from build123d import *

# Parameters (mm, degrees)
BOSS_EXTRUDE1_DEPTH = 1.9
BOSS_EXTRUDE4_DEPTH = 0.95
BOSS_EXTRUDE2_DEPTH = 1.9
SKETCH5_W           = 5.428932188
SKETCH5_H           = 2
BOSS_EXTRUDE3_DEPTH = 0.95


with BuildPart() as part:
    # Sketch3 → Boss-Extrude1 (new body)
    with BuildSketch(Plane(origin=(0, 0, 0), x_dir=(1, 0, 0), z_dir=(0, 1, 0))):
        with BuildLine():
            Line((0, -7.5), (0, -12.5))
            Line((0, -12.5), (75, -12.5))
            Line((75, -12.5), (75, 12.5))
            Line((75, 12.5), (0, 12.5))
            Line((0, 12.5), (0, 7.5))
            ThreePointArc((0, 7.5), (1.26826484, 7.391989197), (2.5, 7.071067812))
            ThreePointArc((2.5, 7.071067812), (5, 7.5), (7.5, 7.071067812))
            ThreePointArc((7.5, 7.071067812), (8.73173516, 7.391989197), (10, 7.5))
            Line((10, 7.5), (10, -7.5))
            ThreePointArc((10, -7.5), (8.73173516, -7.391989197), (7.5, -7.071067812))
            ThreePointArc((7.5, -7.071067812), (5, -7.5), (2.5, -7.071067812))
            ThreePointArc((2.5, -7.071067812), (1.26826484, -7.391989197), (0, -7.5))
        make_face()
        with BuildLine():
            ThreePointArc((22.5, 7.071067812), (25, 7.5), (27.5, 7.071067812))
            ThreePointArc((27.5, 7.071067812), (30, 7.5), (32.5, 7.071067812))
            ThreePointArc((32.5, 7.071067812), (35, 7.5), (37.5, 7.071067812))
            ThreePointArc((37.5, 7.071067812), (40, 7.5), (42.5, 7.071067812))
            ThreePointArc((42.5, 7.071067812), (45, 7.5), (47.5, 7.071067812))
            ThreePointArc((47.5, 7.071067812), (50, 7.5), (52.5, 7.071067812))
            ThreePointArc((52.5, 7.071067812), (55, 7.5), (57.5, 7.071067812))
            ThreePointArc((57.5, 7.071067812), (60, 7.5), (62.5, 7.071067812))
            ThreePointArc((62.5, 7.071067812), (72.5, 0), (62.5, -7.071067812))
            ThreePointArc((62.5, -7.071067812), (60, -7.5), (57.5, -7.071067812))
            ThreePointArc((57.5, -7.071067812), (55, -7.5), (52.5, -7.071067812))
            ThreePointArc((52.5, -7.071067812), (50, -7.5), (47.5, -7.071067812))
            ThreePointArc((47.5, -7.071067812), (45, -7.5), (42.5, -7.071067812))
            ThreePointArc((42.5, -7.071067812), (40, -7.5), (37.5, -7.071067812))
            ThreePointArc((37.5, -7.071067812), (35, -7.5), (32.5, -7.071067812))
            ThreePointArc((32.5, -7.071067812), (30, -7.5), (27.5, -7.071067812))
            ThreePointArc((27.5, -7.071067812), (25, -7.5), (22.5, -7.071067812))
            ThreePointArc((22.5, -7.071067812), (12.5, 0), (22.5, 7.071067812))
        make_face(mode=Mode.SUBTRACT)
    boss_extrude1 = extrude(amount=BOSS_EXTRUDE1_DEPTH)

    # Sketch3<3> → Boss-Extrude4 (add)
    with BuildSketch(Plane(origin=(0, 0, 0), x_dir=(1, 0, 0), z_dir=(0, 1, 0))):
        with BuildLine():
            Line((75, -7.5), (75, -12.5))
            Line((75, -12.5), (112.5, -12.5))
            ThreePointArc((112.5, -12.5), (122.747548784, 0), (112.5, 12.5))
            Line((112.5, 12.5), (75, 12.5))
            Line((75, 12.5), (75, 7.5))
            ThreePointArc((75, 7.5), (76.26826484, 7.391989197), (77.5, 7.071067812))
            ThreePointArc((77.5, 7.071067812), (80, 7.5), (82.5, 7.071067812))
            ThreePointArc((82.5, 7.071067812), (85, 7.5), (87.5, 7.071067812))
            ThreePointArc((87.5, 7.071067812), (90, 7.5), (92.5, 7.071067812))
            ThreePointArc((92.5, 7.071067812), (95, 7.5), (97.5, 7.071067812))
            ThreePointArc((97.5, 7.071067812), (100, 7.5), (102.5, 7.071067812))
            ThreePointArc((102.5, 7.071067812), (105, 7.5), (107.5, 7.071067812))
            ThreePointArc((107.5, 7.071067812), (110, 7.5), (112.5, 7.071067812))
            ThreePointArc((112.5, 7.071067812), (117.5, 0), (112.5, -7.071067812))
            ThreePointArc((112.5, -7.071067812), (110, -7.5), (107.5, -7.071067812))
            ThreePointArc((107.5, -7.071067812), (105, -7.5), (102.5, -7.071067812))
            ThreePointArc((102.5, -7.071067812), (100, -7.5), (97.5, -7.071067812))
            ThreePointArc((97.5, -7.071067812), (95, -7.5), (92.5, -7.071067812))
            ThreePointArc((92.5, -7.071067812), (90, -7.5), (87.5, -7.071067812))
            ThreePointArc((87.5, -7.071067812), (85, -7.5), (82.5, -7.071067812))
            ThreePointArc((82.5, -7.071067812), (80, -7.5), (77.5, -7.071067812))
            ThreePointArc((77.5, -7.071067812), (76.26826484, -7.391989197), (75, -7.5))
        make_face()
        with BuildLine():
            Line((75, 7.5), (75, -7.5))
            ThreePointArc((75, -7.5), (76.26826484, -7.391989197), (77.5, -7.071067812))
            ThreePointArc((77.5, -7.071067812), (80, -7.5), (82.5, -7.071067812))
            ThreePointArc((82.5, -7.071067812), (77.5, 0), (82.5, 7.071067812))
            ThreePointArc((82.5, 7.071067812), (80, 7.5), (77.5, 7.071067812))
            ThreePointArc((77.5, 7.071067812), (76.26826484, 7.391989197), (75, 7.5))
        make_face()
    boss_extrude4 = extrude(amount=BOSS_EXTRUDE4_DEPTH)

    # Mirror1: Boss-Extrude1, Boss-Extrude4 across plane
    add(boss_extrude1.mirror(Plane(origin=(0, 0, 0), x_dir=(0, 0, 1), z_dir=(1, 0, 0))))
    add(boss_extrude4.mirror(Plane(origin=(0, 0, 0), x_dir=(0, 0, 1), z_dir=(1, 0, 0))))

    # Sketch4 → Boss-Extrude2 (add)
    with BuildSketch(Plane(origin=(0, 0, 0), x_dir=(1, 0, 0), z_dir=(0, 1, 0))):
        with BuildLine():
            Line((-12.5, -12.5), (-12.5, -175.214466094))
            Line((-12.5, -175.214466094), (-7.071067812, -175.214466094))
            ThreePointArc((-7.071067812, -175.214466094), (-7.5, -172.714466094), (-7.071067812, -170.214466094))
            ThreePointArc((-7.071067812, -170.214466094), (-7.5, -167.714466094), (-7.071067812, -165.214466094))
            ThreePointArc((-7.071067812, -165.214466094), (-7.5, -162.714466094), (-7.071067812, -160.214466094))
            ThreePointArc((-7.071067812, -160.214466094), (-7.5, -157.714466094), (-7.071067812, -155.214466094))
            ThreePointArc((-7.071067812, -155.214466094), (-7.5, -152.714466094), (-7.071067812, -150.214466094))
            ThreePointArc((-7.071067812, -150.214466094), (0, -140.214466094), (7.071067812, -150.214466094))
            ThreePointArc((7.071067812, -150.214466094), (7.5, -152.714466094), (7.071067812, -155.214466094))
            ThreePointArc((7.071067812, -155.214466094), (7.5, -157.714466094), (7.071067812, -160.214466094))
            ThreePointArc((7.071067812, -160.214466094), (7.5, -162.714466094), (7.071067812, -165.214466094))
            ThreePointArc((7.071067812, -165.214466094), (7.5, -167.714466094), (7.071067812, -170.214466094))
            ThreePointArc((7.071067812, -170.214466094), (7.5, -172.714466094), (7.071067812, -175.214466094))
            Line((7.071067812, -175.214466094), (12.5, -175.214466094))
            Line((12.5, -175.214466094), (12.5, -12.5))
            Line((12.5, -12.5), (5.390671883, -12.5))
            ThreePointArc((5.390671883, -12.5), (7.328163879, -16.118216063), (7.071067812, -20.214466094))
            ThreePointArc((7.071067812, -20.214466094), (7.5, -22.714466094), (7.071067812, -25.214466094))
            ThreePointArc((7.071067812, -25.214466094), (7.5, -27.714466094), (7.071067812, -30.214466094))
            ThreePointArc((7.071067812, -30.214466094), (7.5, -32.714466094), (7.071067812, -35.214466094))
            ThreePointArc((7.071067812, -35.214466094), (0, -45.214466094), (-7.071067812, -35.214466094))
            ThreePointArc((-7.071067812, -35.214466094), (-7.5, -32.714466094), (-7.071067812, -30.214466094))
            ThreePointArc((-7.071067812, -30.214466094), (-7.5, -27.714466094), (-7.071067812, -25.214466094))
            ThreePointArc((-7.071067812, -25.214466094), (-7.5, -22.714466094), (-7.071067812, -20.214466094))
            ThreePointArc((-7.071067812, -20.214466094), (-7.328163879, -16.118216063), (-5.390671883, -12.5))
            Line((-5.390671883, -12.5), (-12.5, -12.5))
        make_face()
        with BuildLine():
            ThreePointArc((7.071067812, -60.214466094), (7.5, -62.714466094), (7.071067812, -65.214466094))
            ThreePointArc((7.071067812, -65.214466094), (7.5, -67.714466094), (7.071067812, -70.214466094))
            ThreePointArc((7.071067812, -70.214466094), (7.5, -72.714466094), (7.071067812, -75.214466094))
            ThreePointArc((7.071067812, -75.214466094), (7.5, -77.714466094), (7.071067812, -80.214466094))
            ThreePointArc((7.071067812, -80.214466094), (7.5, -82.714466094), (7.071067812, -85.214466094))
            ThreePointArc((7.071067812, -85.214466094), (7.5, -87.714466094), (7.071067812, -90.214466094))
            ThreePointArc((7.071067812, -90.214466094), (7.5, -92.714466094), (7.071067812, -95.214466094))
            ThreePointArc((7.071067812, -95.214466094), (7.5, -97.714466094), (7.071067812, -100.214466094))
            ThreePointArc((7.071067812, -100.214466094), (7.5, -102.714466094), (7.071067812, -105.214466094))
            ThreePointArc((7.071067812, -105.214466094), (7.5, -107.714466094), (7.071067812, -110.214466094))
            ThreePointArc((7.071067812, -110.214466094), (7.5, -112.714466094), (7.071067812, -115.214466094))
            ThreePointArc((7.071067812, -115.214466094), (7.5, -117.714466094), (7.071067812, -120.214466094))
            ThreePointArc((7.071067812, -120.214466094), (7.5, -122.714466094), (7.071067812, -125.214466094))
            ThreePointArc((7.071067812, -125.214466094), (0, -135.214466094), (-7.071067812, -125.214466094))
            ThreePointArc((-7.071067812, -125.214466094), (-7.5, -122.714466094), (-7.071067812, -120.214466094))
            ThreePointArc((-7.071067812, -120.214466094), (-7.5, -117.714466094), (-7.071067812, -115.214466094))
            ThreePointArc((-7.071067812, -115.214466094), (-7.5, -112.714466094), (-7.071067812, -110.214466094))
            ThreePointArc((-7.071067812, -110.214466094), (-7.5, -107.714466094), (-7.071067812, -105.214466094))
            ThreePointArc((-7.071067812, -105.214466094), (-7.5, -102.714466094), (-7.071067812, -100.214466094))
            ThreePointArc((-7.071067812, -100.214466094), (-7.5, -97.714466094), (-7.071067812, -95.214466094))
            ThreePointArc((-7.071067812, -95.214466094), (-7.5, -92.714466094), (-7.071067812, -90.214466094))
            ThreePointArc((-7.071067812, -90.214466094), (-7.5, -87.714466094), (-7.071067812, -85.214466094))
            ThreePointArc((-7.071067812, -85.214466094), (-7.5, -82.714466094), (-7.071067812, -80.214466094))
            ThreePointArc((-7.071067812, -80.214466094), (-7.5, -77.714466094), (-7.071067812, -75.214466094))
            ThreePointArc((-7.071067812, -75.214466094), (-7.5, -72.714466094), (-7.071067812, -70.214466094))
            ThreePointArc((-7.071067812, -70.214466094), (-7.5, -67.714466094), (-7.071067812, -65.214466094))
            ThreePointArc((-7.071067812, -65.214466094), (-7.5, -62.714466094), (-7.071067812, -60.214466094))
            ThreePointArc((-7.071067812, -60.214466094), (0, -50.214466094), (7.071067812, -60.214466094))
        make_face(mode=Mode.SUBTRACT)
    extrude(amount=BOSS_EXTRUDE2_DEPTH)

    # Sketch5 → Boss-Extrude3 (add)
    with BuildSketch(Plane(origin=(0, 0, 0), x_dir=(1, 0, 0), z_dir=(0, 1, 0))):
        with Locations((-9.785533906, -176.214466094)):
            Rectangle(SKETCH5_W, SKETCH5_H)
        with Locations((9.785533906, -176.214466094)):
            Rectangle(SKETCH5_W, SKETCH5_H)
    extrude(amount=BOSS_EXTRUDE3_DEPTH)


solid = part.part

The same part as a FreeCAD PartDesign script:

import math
import FreeCAD as App
import Part
import Sketcher
from FreeCAD import Vector
Q = App.Units.Quantity


def add_polygon(sketch, points):
    """Adds a closed chain of lines whose ends are joined by coincident constraints."""
    first, n = sketch.GeometryCount, len(points)
    for a, b in zip(points, points[1:] + points[:1]):
        sketch.addGeometry(Part.LineSegment(App.Vector(*a, 0), App.Vector(*b, 0)), False)
    for i in range(n):
        sketch.addConstraint(Sketcher.Constraint("Coincident", first + i, 2, first + (i + 1) % n, 1))

doc = App.newDocument("Part")
params = doc.addObject("Spreadsheet::Sheet", "Params")
for row, (alias, value) in enumerate([
    ("sketch1_radius", "7.5 mm"),
    ("sketch1_width", "75 mm"),
    ("sketch1_height", "5 mm"),
    ("pad1_length", "1.9 mm"),
    ("sketch2_radius", "7.5 mm"),
    ("sketch2_height", "25 mm"),
    ("sketch2_width", "37.5 mm"),
    ("pad2_length", "0.95 mm"),
    ("sketch3_radius", "7.5 mm"),
    ("pad3_length", "1.9 mm"),
    ("sketch4_height", "2 mm"),
    ("pad4_length", "0.95 mm"),
], start=1):
    params.set(f"A{row}", alias)
    params.set(f"B{row}", "=" + value)
    params.setAlias(f"B{row}", alias)

body = doc.addObject("PartDesign::Body", "Body")

sketch1 = body.newObject("Sketcher::SketchObject", "Sketch")
sketch1.AttachmentSupport = (doc.getObject("XZ_Plane"), [""])
sketch1.MapMode = "FlatFace"
sketch1.addGeometry([
    Part.LineSegment(Vector(0, 7.5, 0), Vector(0, 12.5, 0)),
    Part.LineSegment(Vector(0, 12.5, 0), Vector(75, 12.5, 0)),
    Part.LineSegment(Vector(75, 12.5, 0), Vector(75, -12.5, 0)),
    Part.LineSegment(Vector(75, -12.5, 0), Vector(0, -12.5, 0)),
    Part.LineSegment(Vector(0, -12.5, 0), Vector(0, -7.5, 0)),
    Part.ArcOfCircle(Part.Circle(Vector(0, 0, 0), Vector(0, 0, 1), 7.5), math.radians(-90), math.radians(-70.528779)),
    Part.ArcOfCircle(Part.Circle(Vector(5, 0, 0), Vector(0, 0, 1), 7.5), math.radians(-109.471221), math.radians(-70.528779)),
    Part.ArcOfCircle(Part.Circle(Vector(10, 0, 0), Vector(0, 0, 1), 7.5), math.radians(-109.471221), math.radians(-90)),
    Part.LineSegment(Vector(10, -7.5, 0), Vector(10, 7.5, 0)),
    Part.ArcOfCircle(Part.Circle(Vector(10, 0, 0), Vector(0, 0, 1), 7.5), math.radians(90), math.radians(109.471221)),
    Part.ArcOfCircle(Part.Circle(Vector(5, 0, 0), Vector(0, 0, 1), 7.5), math.radians(70.528779), math.radians(109.471221)),
    Part.ArcOfCircle(Part.Circle(Vector(0, 0, 0), Vector(0, 0, 1), 7.5), math.radians(70.528779), math.radians(90)),
    Part.ArcOfCircle(Part.Circle(Vector(20, 0, 0), Vector(0, 0, 1), 7.5), math.radians(70.528779), math.radians(289.471221)),
    Part.ArcOfCircle(Part.Circle(Vector(25, 0, 0), Vector(0, 0, 1), 7.5), math.radians(-109.471221), math.radians(-70.528779)),
    Part.ArcOfCircle(Part.Circle(Vector(30, 0, 0), Vector(0, 0, 1), 7.5), math.radians(-109.471221), math.radians(-70.528779)),
    Part.ArcOfCircle(Part.Circle(Vector(35, 0, 0), Vector(0, 0, 1), 7.5), math.radians(-109.471221), math.radians(-70.528779)),
    Part.ArcOfCircle(Part.Circle(Vector(40, 0, 0), Vector(0, 0, 1), 7.5), math.radians(-109.471221), math.radians(-70.528779)),
    Part.ArcOfCircle(Part.Circle(Vector(45, 0, 0), Vector(0, 0, 1), 7.5), math.radians(-109.471221), math.radians(-70.528779)),
    Part.ArcOfCircle(Part.Circle(Vector(50, 0, 0), Vector(0, 0, 1), 7.5), math.radians(-109.471221), math.radians(-70.528779)),
    Part.ArcOfCircle(Part.Circle(Vector(55, 0, 0), Vector(0, 0, 1), 7.5), math.radians(-109.471221), math.radians(-70.528779)),
    Part.ArcOfCircle(Part.Circle(Vector(60, 0, 0), Vector(0, 0, 1), 7.5), math.radians(-109.471221), math.radians(-70.528779)),
    Part.ArcOfCircle(Part.Circle(Vector(65, 0, 0), Vector(0, 0, 1), 7.5), math.radians(-109.471221), math.radians(109.471221)),
    Part.ArcOfCircle(Part.Circle(Vector(60, 0, 0), Vector(0, 0, 1), 7.5), math.radians(70.528779), math.radians(109.471221)),
    Part.ArcOfCircle(Part.Circle(Vector(55, 0, 0), Vector(0, 0, 1), 7.5), math.radians(70.528779), math.radians(109.471221)),
    Part.ArcOfCircle(Part.Circle(Vector(50, 0, 0), Vector(0, 0, 1), 7.5), math.radians(70.528779), math.radians(109.471221)),
    Part.ArcOfCircle(Part.Circle(Vector(45, 0, 0), Vector(0, 0, 1), 7.5), math.radians(70.528779), math.radians(109.471221)),
    Part.ArcOfCircle(Part.Circle(Vector(40, 0, 0), Vector(0, 0, 1), 7.5), math.radians(70.528779), math.radians(109.471221)),
    Part.ArcOfCircle(Part.Circle(Vector(35, 0, 0), Vector(0, 0, 1), 7.5), math.radians(70.528779), math.radians(109.471221)),
    Part.ArcOfCircle(Part.Circle(Vector(30, 0, 0), Vector(0, 0, 1), 7.5), math.radians(70.528779), math.radians(109.471221)),
    Part.ArcOfCircle(Part.Circle(Vector(25, 0, 0), Vector(0, 0, 1), 7.5), math.radians(70.528779), math.radians(109.471221)),
], False)
sketch1.addConstraint([
    Sketcher.Constraint("Coincident", 0, 2, 1, 1),
    Sketcher.Constraint("Coincident", 1, 2, 2, 1),
    Sketcher.Constraint("Coincident", 2, 2, 3, 1),
    Sketcher.Constraint("Coincident", 3, 2, 4, 1),
    Sketcher.Constraint("Coincident", 4, 2, 5, 1),
    Sketcher.Constraint("Coincident", 5, 2, 6, 1),
    Sketcher.Constraint("Coincident", 6, 2, 7, 1),
    Sketcher.Constraint("Coincident", 7, 2, 8, 1),
    Sketcher.Constraint("Coincident", 8, 2, 9, 1),
    Sketcher.Constraint("Coincident", 9, 2, 10, 1),
    Sketcher.Constraint("Coincident", 10, 2, 11, 1),
    Sketcher.Constraint("Coincident", 11, 2, 0, 1),
    Sketcher.Constraint("Coincident", 12, 2, 13, 1),
    Sketcher.Constraint("Coincident", 13, 2, 14, 1),
    Sketcher.Constraint("Coincident", 14, 2, 15, 1),
    Sketcher.Constraint("Coincident", 15, 2, 16, 1),
    Sketcher.Constraint("Coincident", 16, 2, 17, 1),
    Sketcher.Constraint("Coincident", 17, 2, 18, 1),
    Sketcher.Constraint("Coincident", 18, 2, 19, 1),
    Sketcher.Constraint("Coincident", 19, 2, 20, 1),
    Sketcher.Constraint("Coincident", 20, 2, 21, 1),
    Sketcher.Constraint("Coincident", 21, 2, 22, 1),
    Sketcher.Constraint("Coincident", 22, 2, 23, 1),
    Sketcher.Constraint("Coincident", 23, 2, 24, 1),
    Sketcher.Constraint("Coincident", 24, 2, 25, 1),
    Sketcher.Constraint("Coincident", 25, 2, 26, 1),
    Sketcher.Constraint("Coincident", 26, 2, 27, 1),
    Sketcher.Constraint("Coincident", 27, 2, 28, 1),
    Sketcher.Constraint("Coincident", 28, 2, 29, 1),
    Sketcher.Constraint("Coincident", 29, 2, 12, 1),
    Sketcher.Constraint("Vertical", 0),
    Sketcher.Constraint("Horizontal", 1),
    Sketcher.Constraint("Vertical", 2),
    Sketcher.Constraint("Horizontal", 3),
    Sketcher.Constraint("Vertical", 4),
    Sketcher.Constraint("Vertical", 8),
    Sketcher.Constraint("Coincident", 5, 3, -1, 1),
    Sketcher.Constraint("Coincident", 11, 3, -1, 1),
    Sketcher.Constraint("Coincident", 9, 3, 7, 3),
    Sketcher.Constraint("Coincident", 10, 3, 6, 3),
    Sketcher.Constraint("Coincident", 22, 3, 20, 3),
    Sketcher.Constraint("Coincident", 23, 3, 19, 3),
    Sketcher.Constraint("Coincident", 24, 3, 18, 3),
    Sketcher.Constraint("Coincident", 25, 3, 17, 3),
    Sketcher.Constraint("Coincident", 26, 3, 16, 3),
    Sketcher.Constraint("Coincident", 27, 3, 15, 3),
    Sketcher.Constraint("Coincident", 28, 3, 14, 3),
    Sketcher.Constraint("Coincident", 29, 3, 13, 3),
    Sketcher.Constraint("Equal", 5, 6),
    Sketcher.Constraint("Equal", 6, 7),
    Sketcher.Constraint("Equal", 7, 9),
    Sketcher.Constraint("Equal", 9, 10),
    Sketcher.Constraint("Equal", 10, 11),
    Sketcher.Constraint("Equal", 11, 12),
    Sketcher.Constraint("Equal", 12, 13),
    Sketcher.Constraint("Equal", 13, 14),
    Sketcher.Constraint("Equal", 14, 15),
    Sketcher.Constraint("Equal", 15, 16),
    Sketcher.Constraint("Equal", 16, 17),
    Sketcher.Constraint("Equal", 17, 18),
    Sketcher.Constraint("Equal", 18, 19),
    Sketcher.Constraint("Equal", 19, 20),
    Sketcher.Constraint("Equal", 20, 21),
    Sketcher.Constraint("Equal", 21, 22),
    Sketcher.Constraint("Equal", 22, 23),
    Sketcher.Constraint("Equal", 23, 24),
    Sketcher.Constraint("Equal", 24, 25),
    Sketcher.Constraint("Equal", 25, 26),
    Sketcher.Constraint("Equal", 26, 27),
    Sketcher.Constraint("Equal", 27, 28),
    Sketcher.Constraint("Equal", 28, 29),
    Sketcher.Constraint("Symmetric", 0, 2, 3, 2, -1, 1),
    Sketcher.Constraint("Symmetric", 6, 2, 9, 2, -1),
    Sketcher.Constraint("Symmetric", 20, 2, 21, 2, -1),
    Sketcher.Constraint("Symmetric", 18, 2, 23, 2, -1),
    Sketcher.Constraint("Symmetric", 16, 2, 25, 2, -1),
    Sketcher.Constraint("Symmetric", 14, 2, 27, 2, -1),
    Sketcher.Constraint("Symmetric", 12, 2, 29, 2, -1),
    Sketcher.Constraint("PointOnObject", 0, 2, -2),
    Sketcher.Constraint("Horizontal", 5, 2, 6, 2),
    Sketcher.Constraint("Horizontal", 6, 2, 12, 2),
    Sketcher.Constraint("Horizontal", 12, 2, 13, 2),
    Sketcher.Constraint("Horizontal", 13, 2, 14, 2),
    Sketcher.Constraint("Horizontal", 14, 2, 15, 2),
    Sketcher.Constraint("Horizontal", 15, 2, 16, 2),
    Sketcher.Constraint("Horizontal", 16, 2, 17, 2),
    Sketcher.Constraint("Horizontal", 17, 2, 18, 2),
    Sketcher.Constraint("Horizontal", 18, 2, 19, 2),
    Sketcher.Constraint("Horizontal", 19, 2, 20, 2),
    Sketcher.Constraint("Vertical", 9, 3, 7, 2),
    Sketcher.Constraint("Radius", 5, Q("7.5 mm")),
    Sketcher.Constraint("DistanceX", 1, 1, 1, 2, Q("75 mm")),
    Sketcher.Constraint("DistanceY", 0, 1, 0, 2, Q("5 mm")),
    Sketcher.Constraint("DistanceX", -1, 1, 6, 3, Q("5 mm")),
    Sketcher.Constraint("DistanceX", -1, 1, 12, 3, Q("20 mm")),
])
sketch1.setExpression("Constraints[90]", "Params.sketch1_radius")
sketch1.setExpression("Constraints[91]", "Params.sketch1_width")
sketch1.setExpression("Constraints[92]", "Params.sketch1_height")
pad1 = body.newObject("PartDesign::Pad", "Pad")
pad1.Profile = sketch1
pad1.setExpression("Length", "Params.pad1_length")
pad1.Reversed = True

sketch2 = body.newObject("Sketcher::SketchObject", "Sketch001")
sketch2.AttachmentSupport = (doc.getObject("XZ_Plane"), [""])
sketch2.MapMode = "FlatFace"
sketch2.addGeometry([
    Part.LineSegment(Vector(75, 12.5, 0), Vector(112.5, 12.5, 0)),
    Part.ArcOfCircle(Part.Circle(Vector(110, 0, 0), Vector(0, 0, 1), 12.747549), math.radians(-78.690068), math.radians(78.690068)),
    Part.LineSegment(Vector(112.5, -12.5, 0), Vector(75, -12.5, 0)),
    Part.LineSegment(Vector(75, -12.5, 0), Vector(75, 12.5, 0)),
    Part.ArcOfCircle(Part.Circle(Vector(85, 0, 0), Vector(0, 0, 1), 7.5), math.radians(-109.471221), math.radians(-70.528779)),
    Part.ArcOfCircle(Part.Circle(Vector(90, 0, 0), Vector(0, 0, 1), 7.5), math.radians(-109.471221), math.radians(-70.528779)),
    Part.ArcOfCircle(Part.Circle(Vector(95, 0, 0), Vector(0, 0, 1), 7.5), math.radians(-109.471221), math.radians(-70.528779)),
    Part.ArcOfCircle(Part.Circle(Vector(100, 0, 0), Vector(0, 0, 1), 7.5), math.radians(-109.471221), math.radians(-70.528779)),
    Part.ArcOfCircle(Part.Circle(Vector(105, 0, 0), Vector(0, 0, 1), 7.5), math.radians(-109.471221), math.radians(-70.528779)),
    Part.ArcOfCircle(Part.Circle(Vector(110, 0, 0), Vector(0, 0, 1), 7.5), math.radians(-109.471221), math.radians(-70.528779)),
    Part.ArcOfCircle(Part.Circle(Vector(110, 0, 0), Vector(0, 0, 1), 7.5), math.radians(-70.528779), math.radians(70.528779)),
    Part.ArcOfCircle(Part.Circle(Vector(110, 0, 0), Vector(0, 0, 1), 7.5), math.radians(70.528779), math.radians(109.471221)),
    Part.ArcOfCircle(Part.Circle(Vector(105, 0, 0), Vector(0, 0, 1), 7.5), math.radians(70.528779), math.radians(109.471221)),
    Part.ArcOfCircle(Part.Circle(Vector(100, 0, 0), Vector(0, 0, 1), 7.5), math.radians(70.528779), math.radians(109.471221)),
    Part.ArcOfCircle(Part.Circle(Vector(95, 0, 0), Vector(0, 0, 1), 7.5), math.radians(70.528779), math.radians(109.471221)),
    Part.ArcOfCircle(Part.Circle(Vector(90, 0, 0), Vector(0, 0, 1), 7.5), math.radians(70.528779), math.radians(109.471221)),
    Part.ArcOfCircle(Part.Circle(Vector(85, 0, 0), Vector(0, 0, 1), 7.5), math.radians(70.528779), math.radians(109.471221)),
    Part.ArcOfCircle(Part.Circle(Vector(85, 0, 0), Vector(0, 0, 1), 7.5), math.radians(109.471221), math.radians(250.528779)),
], False)
sketch2.addConstraint([
    Sketcher.Constraint("Coincident", 0, 2, 1, 2),
    Sketcher.Constraint("Coincident", 1, 1, 2, 1),
    Sketcher.Constraint("Coincident", 2, 2, 3, 1),
    Sketcher.Constraint("Coincident", 3, 2, 0, 1),
    Sketcher.Constraint("Coincident", 4, 2, 5, 1),
    Sketcher.Constraint("Coincident", 5, 2, 6, 1),
    Sketcher.Constraint("Coincident", 6, 2, 7, 1),
    Sketcher.Constraint("Coincident", 7, 2, 8, 1),
    Sketcher.Constraint("Coincident", 8, 2, 9, 1),
    Sketcher.Constraint("Tangent", 9, 2, 10, 1),
    Sketcher.Constraint("Tangent", 10, 2, 11, 1),
    Sketcher.Constraint("Coincident", 11, 2, 12, 1),
    Sketcher.Constraint("Coincident", 12, 2, 13, 1),
    Sketcher.Constraint("Coincident", 13, 2, 14, 1),
    Sketcher.Constraint("Coincident", 14, 2, 15, 1),
    Sketcher.Constraint("Coincident", 15, 2, 16, 1),
    Sketcher.Constraint("Tangent", 16, 2, 17, 1),
    Sketcher.Constraint("Tangent", 17, 2, 4, 1),
    Sketcher.Constraint("Horizontal", 0),
    Sketcher.Constraint("Horizontal", 2),
    Sketcher.Constraint("Vertical", 3),
    Sketcher.Constraint("Coincident", 9, 3, 1, 3),
    Sketcher.Constraint("Coincident", 11, 3, 1, 3),
    Sketcher.Constraint("Coincident", 12, 3, 8, 3),
    Sketcher.Constraint("Coincident", 13, 3, 7, 3),
    Sketcher.Constraint("Coincident", 14, 3, 6, 3),
    Sketcher.Constraint("Coincident", 15, 3, 5, 3),
    Sketcher.Constraint("Coincident", 16, 3, 4, 3),
    Sketcher.Constraint("Equal", 4, 5),
    Sketcher.Constraint("Equal", 5, 6),
    Sketcher.Constraint("Equal", 6, 7),
    Sketcher.Constraint("Equal", 7, 8),
    Sketcher.Constraint("Equal", 8, 9),
    Sketcher.Constraint("Equal", 11, 12),
    Sketcher.Constraint("Equal", 12, 13),
    Sketcher.Constraint("Equal", 13, 14),
    Sketcher.Constraint("Equal", 14, 15),
    Sketcher.Constraint("Symmetric", 0, 2, 1, 1, -1),
    Sketcher.Constraint("Symmetric", 7, 2, 12, 2, -1),
    Sketcher.Constraint("Symmetric", 5, 2, 14, 2, -1),
    Sketcher.Constraint("Symmetric", 16, 2, 17, 2, -1),
    Sketcher.Constraint("Horizontal", 4, 2, 5, 2),
    Sketcher.Constraint("Horizontal", 5, 2, 6, 2),
    Sketcher.Constraint("Horizontal", 6, 2, 7, 2),
    Sketcher.Constraint("Horizontal", 7, 2, 8, 2),
    Sketcher.Constraint("Horizontal", 8, 2, 9, 2),
    Sketcher.Constraint("Horizontal", 10, 2, 11, 2),
    Sketcher.Constraint("Horizontal", 15, 2, 16, 2),
    Sketcher.Constraint("Vertical", 1, 1, 9, 2),
    Sketcher.Constraint("Radius", 4, Q("7.5 mm")),
    Sketcher.Constraint("DistanceY", 3, 1, 3, 2, Q("25 mm")),
    Sketcher.Constraint("DistanceX", 0, 1, 0, 2, Q("37.5 mm")),
    Sketcher.Constraint("DistanceX", -1, 1, 1, 3, Q("110 mm")),
    Sketcher.Constraint("DistanceX", -1, 1, 4, 3, Q("85 mm")),
])
sketch2.setExpression("Constraints[49]", "Params.sketch2_radius")
sketch2.setExpression("Constraints[50]", "Params.sketch2_height")
sketch2.setExpression("Constraints[51]", "Params.sketch2_width")
pad2 = body.newObject("PartDesign::Pad", "Pad001")
pad2.Profile = sketch2
pad2.setExpression("Length", "Params.pad2_length")
pad2.Reversed = True
doc.recompute()

mirrored = body.newObject("PartDesign::Mirrored", "Mirrored")
mirrored.Originals = [pad1, pad2]
mirrored.MirrorPlane = (doc.getObject("YZ_Plane"), [""])
body.Tip = mirrored

sketch3 = body.newObject("Sketcher::SketchObject", "Sketch002")
sketch3.AttachmentSupport = (doc.getObject("XZ_Plane"), [""])
sketch3.MapMode = "FlatFace"
sketch3.addGeometry([
    Part.LineSegment(Vector(-12.5, 12.5, 0), Vector(-12.5, 175.214466, 0)),
    Part.LineSegment(Vector(-12.5, 175.214466, 0), Vector(-7.071068, 175.214466, 0)),
    Part.ArcOfCircle(Part.Circle(Vector(0, 172.714466, 0), Vector(0, 0, 1), 7.5), math.radians(160.528779), math.radians(199.471221)),
    Part.ArcOfCircle(Part.Circle(Vector(0, 167.714466, 0), Vector(0, 0, 1), 7.5), math.radians(160.528779), math.radians(199.471221)),
    Part.ArcOfCircle(Part.Circle(Vector(0, 162.714466, 0), Vector(0, 0, 1), 7.5), math.radians(160.528779), math.radians(199.471221)),
    Part.ArcOfCircle(Part.Circle(Vector(0, 157.714466, 0), Vector(0, 0, 1), 7.5), math.radians(160.528779), math.radians(199.471221)),
    Part.ArcOfCircle(Part.Circle(Vector(0, 152.714466, 0), Vector(0, 0, 1), 7.5), math.radians(160.528779), math.radians(199.471221)),
    Part.ArcOfCircle(Part.Circle(Vector(0, 147.714466, 0), Vector(0, 0, 1), 7.5), math.radians(160.528779), math.radians(379.471221)),
    Part.ArcOfCircle(Part.Circle(Vector(0, 152.714466, 0), Vector(0, 0, 1), 7.5), math.radians(-19.471221), math.radians(19.471221)),
    Part.ArcOfCircle(Part.Circle(Vector(0, 157.714466, 0), Vector(0, 0, 1), 7.5), math.radians(-19.471221), math.radians(19.471221)),
    Part.ArcOfCircle(Part.Circle(Vector(0, 162.714466, 0), Vector(0, 0, 1), 7.5), math.radians(-19.471221), math.radians(19.471221)),
    Part.ArcOfCircle(Part.Circle(Vector(0, 167.714466, 0), Vector(0, 0, 1), 7.5), math.radians(-19.471221), math.radians(19.471221)),
    Part.ArcOfCircle(Part.Circle(Vector(0, 172.714466, 0), Vector(0, 0, 1), 7.5), math.radians(-19.471221), math.radians(19.471221)),
    Part.LineSegment(Vector(7.071068, 175.214466, 0), Vector(12.5, 175.214466, 0)),
    Part.LineSegment(Vector(12.5, 175.214466, 0), Vector(12.5, 12.5, 0)),
    Part.LineSegment(Vector(12.5, 12.5, 0), Vector(5.390672, 12.5, 0)),
    Part.ArcOfCircle(Part.Circle(Vector(0, 17.714466, 0), Vector(0, 0, 1), 7.5), math.radians(-44.048111), math.radians(19.471221)),
    Part.ArcOfCircle(Part.Circle(Vector(0, 22.714466, 0), Vector(0, 0, 1), 7.5), math.radians(-19.471221), math.radians(19.471221)),
    Part.ArcOfCircle(Part.Circle(Vector(0, 27.714466, 0), Vector(0, 0, 1), 7.5), math.radians(-19.471221), math.radians(19.471221)),
    Part.ArcOfCircle(Part.Circle(Vector(0, 32.714466, 0), Vector(0, 0, 1), 7.5), math.radians(-19.471221), math.radians(19.471221)),
    Part.ArcOfCircle(Part.Circle(Vector(0, 37.714466, 0), Vector(0, 0, 1), 7.5), math.radians(-19.471221), math.radians(199.471221)),
    Part.ArcOfCircle(Part.Circle(Vector(0, 32.714466, 0), Vector(0, 0, 1), 7.5), math.radians(160.528779), math.radians(199.471221)),
    Part.ArcOfCircle(Part.Circle(Vector(0, 27.714466, 0), Vector(0, 0, 1), 7.5), math.radians(160.528779), math.radians(199.471221)),
    Part.ArcOfCircle(Part.Circle(Vector(0, 22.714466, 0), Vector(0, 0, 1), 7.5), math.radians(160.528779), math.radians(199.471221)),
    Part.ArcOfCircle(Part.Circle(Vector(0, 17.714466, 0), Vector(0, 0, 1), 7.5), math.radians(160.528779), math.radians(224.048111)),
    Part.LineSegment(Vector(-5.390672, 12.5, 0), Vector(-12.5, 12.5, 0)),
    Part.ArcOfCircle(Part.Circle(Vector(0, 57.714466, 0), Vector(0, 0, 1), 7.5), math.radians(160.528779), math.radians(379.471221)),
    Part.ArcOfCircle(Part.Circle(Vector(0, 62.714466, 0), Vector(0, 0, 1), 7.5), math.radians(-19.471221), math.radians(19.471221)),
    Part.ArcOfCircle(Part.Circle(Vector(0, 67.714466, 0), Vector(0, 0, 1), 7.5), math.radians(-19.471221), math.radians(19.471221)),
    Part.ArcOfCircle(Part.Circle(Vector(0, 72.714466, 0), Vector(0, 0, 1), 7.5), math.radians(-19.471221), math.radians(19.471221)),
    Part.ArcOfCircle(Part.Circle(Vector(0, 77.714466, 0), Vector(0, 0, 1), 7.5), math.radians(-19.471221), math.radians(19.471221)),
    Part.ArcOfCircle(Part.Circle(Vector(0, 82.714466, 0), Vector(0, 0, 1), 7.5), math.radians(-19.471221), math.radians(19.471221)),
    Part.ArcOfCircle(Part.Circle(Vector(0, 87.714466, 0), Vector(0, 0, 1), 7.5), math.radians(-19.471221), math.radians(19.471221)),
    Part.ArcOfCircle(Part.Circle(Vector(0, 92.714466, 0), Vector(0, 0, 1), 7.5), math.radians(-19.471221), math.radians(19.471221)),
    Part.ArcOfCircle(Part.Circle(Vector(0, 97.714466, 0), Vector(0, 0, 1), 7.5), math.radians(-19.471221), math.radians(19.471221)),
    Part.ArcOfCircle(Part.Circle(Vector(0, 102.714466, 0), Vector(0, 0, 1), 7.5), math.radians(-19.471221), math.radians(19.471221)),
    Part.ArcOfCircle(Part.Circle(Vector(0, 107.714466, 0), Vector(0, 0, 1), 7.5), math.radians(-19.471221), math.radians(19.471221)),
    Part.ArcOfCircle(Part.Circle(Vector(0, 112.714466, 0), Vector(0, 0, 1), 7.5), math.radians(-19.471221), math.radians(19.471221)),
    Part.ArcOfCircle(Part.Circle(Vector(0, 117.714466, 0), Vector(0, 0, 1), 7.5), math.radians(-19.471221), math.radians(19.471221)),
    Part.ArcOfCircle(Part.Circle(Vector(0, 122.714466, 0), Vector(0, 0, 1), 7.5), math.radians(-19.471221), math.radians(19.471221)),
    Part.ArcOfCircle(Part.Circle(Vector(0, 127.714466, 0), Vector(0, 0, 1), 7.5), math.radians(-19.471221), math.radians(199.471221)),
    Part.ArcOfCircle(Part.Circle(Vector(0, 122.714466, 0), Vector(0, 0, 1), 7.5), math.radians(160.528779), math.radians(199.471221)),
    Part.ArcOfCircle(Part.Circle(Vector(0, 117.714466, 0), Vector(0, 0, 1), 7.5), math.radians(160.528779), math.radians(199.471221)),
    Part.ArcOfCircle(Part.Circle(Vector(0, 112.714466, 0), Vector(0, 0, 1), 7.5), math.radians(160.528779), math.radians(199.471221)),
    Part.ArcOfCircle(Part.Circle(Vector(0, 107.714466, 0), Vector(0, 0, 1), 7.5), math.radians(160.528779), math.radians(199.471221)),
    Part.ArcOfCircle(Part.Circle(Vector(0, 102.714466, 0), Vector(0, 0, 1), 7.5), math.radians(160.528779), math.radians(199.471221)),
    Part.ArcOfCircle(Part.Circle(Vector(0, 97.714466, 0), Vector(0, 0, 1), 7.5), math.radians(160.528779), math.radians(199.471221)),
    Part.ArcOfCircle(Part.Circle(Vector(0, 92.714466, 0), Vector(0, 0, 1), 7.5), math.radians(160.528779), math.radians(199.471221)),
    Part.ArcOfCircle(Part.Circle(Vector(0, 87.714466, 0), Vector(0, 0, 1), 7.5), math.radians(160.528779), math.radians(199.471221)),
    Part.ArcOfCircle(Part.Circle(Vector(0, 82.714466, 0), Vector(0, 0, 1), 7.5), math.radians(160.528779), math.radians(199.471221)),
    Part.ArcOfCircle(Part.Circle(Vector(0, 77.714466, 0), Vector(0, 0, 1), 7.5), math.radians(160.528779), math.radians(199.471221)),
    Part.ArcOfCircle(Part.Circle(Vector(0, 72.714466, 0), Vector(0, 0, 1), 7.5), math.radians(160.528779), math.radians(199.471221)),
    Part.ArcOfCircle(Part.Circle(Vector(0, 67.714466, 0), Vector(0, 0, 1), 7.5), math.radians(160.528779), math.radians(199.471221)),
    Part.ArcOfCircle(Part.Circle(Vector(0, 62.714466, 0), Vector(0, 0, 1), 7.5), math.radians(160.528779), math.radians(199.471221)),
], False)
sketch3.addConstraint([
    Sketcher.Constraint("Coincident", 0, 2, 1, 1),
    Sketcher.Constraint("Coincident", 1, 2, 2, 1),
    Sketcher.Constraint("Coincident", 2, 2, 3, 1),
    Sketcher.Constraint("Coincident", 3, 2, 4, 1),
    Sketcher.Constraint("Coincident", 4, 2, 5, 1),
    Sketcher.Constraint("Coincident", 5, 2, 6, 1),
    Sketcher.Constraint("Coincident", 6, 2, 7, 1),
    Sketcher.Constraint("Coincident", 7, 2, 8, 1),
    Sketcher.Constraint("Coincident", 8, 2, 9, 1),
    Sketcher.Constraint("Coincident", 9, 2, 10, 1),
    Sketcher.Constraint("Coincident", 10, 2, 11, 1),
    Sketcher.Constraint("Coincident", 11, 2, 12, 1),
    Sketcher.Constraint("Coincident", 12, 2, 13, 1),
    Sketcher.Constraint("Coincident", 13, 2, 14, 1),
    Sketcher.Constraint("Coincident", 14, 2, 15, 1),
    Sketcher.Constraint("Coincident", 15, 2, 16, 1),
    Sketcher.Constraint("Coincident", 16, 2, 17, 1),
    Sketcher.Constraint("Coincident", 17, 2, 18, 1),
    Sketcher.Constraint("Coincident", 18, 2, 19, 1),
    Sketcher.Constraint("Coincident", 19, 2, 20, 1),
    Sketcher.Constraint("Coincident", 20, 2, 21, 1),
    Sketcher.Constraint("Coincident", 21, 2, 22, 1),
    Sketcher.Constraint("Coincident", 22, 2, 23, 1),
    Sketcher.Constraint("Coincident", 23, 2, 24, 1),
    Sketcher.Constraint("Coincident", 24, 2, 25, 1),
    Sketcher.Constraint("Coincident", 25, 2, 0, 1),
    Sketcher.Constraint("Coincident", 26, 2, 27, 1),
    Sketcher.Constraint("Coincident", 27, 2, 28, 1),
    Sketcher.Constraint("Coincident", 28, 2, 29, 1),
    Sketcher.Constraint("Coincident", 29, 2, 30, 1),
    Sketcher.Constraint("Coincident", 30, 2, 31, 1),
    Sketcher.Constraint("Coincident", 31, 2, 32, 1),
    Sketcher.Constraint("Coincident", 32, 2, 33, 1),
    Sketcher.Constraint("Coincident", 33, 2, 34, 1),
    Sketcher.Constraint("Coincident", 34, 2, 35, 1),
    Sketcher.Constraint("Coincident", 35, 2, 36, 1),
    Sketcher.Constraint("Coincident", 36, 2, 37, 1),
    Sketcher.Constraint("Coincident", 37, 2, 38, 1),
    Sketcher.Constraint("Coincident", 38, 2, 39, 1),
    Sketcher.Constraint("Coincident", 39, 2, 40, 1),
    Sketcher.Constraint("Coincident", 40, 2, 41, 1),
    Sketcher.Constraint("Coincident", 41, 2, 42, 1),
    Sketcher.Constraint("Coincident", 42, 2, 43, 1),
    Sketcher.Constraint("Coincident", 43, 2, 44, 1),
    Sketcher.Constraint("Coincident", 44, 2, 45, 1),
    Sketcher.Constraint("Coincident", 45, 2, 46, 1),
    Sketcher.Constraint("Coincident", 46, 2, 47, 1),
    Sketcher.Constraint("Coincident", 47, 2, 48, 1),
    Sketcher.Constraint("Coincident", 48, 2, 49, 1),
    Sketcher.Constraint("Coincident", 49, 2, 50, 1),
    Sketcher.Constraint("Coincident", 50, 2, 51, 1),
    Sketcher.Constraint("Coincident", 51, 2, 52, 1),
    Sketcher.Constraint("Coincident", 52, 2, 53, 1),
    Sketcher.Constraint("Coincident", 53, 2, 26, 1),
    Sketcher.Constraint("Vertical", 0),
    Sketcher.Constraint("Horizontal", 1),
    Sketcher.Constraint("Horizontal", 13),
    Sketcher.Constraint("Vertical", 14),
    Sketcher.Constraint("Horizontal", 15),
    Sketcher.Constraint("Horizontal", 25),
    Sketcher.Constraint("Coincident", 8, 3, 6, 3),
    Sketcher.Constraint("Coincident", 9, 3, 5, 3),
    Sketcher.Constraint("Coincident", 10, 3, 4, 3),
    Sketcher.Constraint("Coincident", 11, 3, 3, 3),
    Sketcher.Constraint("Coincident", 12, 3, 2, 3),
    Sketcher.Constraint("Coincident", 21, 3, 19, 3),
    Sketcher.Constraint("Coincident", 22, 3, 18, 3),
    Sketcher.Constraint("Coincident", 23, 3, 17, 3),
    Sketcher.Constraint("Coincident", 24, 3, 16, 3),
    Sketcher.Constraint("Coincident", 41, 3, 39, 3),
    Sketcher.Constraint("Coincident", 42, 3, 38, 3),
    Sketcher.Constraint("Coincident", 43, 3, 37, 3),
    Sketcher.Constraint("Coincident", 44, 3, 36, 3),
    Sketcher.Constraint("Coincident", 45, 3, 35, 3),
    Sketcher.Constraint("Coincident", 46, 3, 34, 3),
    Sketcher.Constraint("Coincident", 47, 3, 33, 3),
    Sketcher.Constraint("Coincident", 48, 3, 32, 3),
    Sketcher.Constraint("Coincident", 49, 3, 31, 3),
    Sketcher.Constraint("Coincident", 50, 3, 30, 3),
    Sketcher.Constraint("Coincident", 51, 3, 29, 3),
    Sketcher.Constraint("Coincident", 52, 3, 28, 3),
    Sketcher.Constraint("Coincident", 53, 3, 27, 3),
    Sketcher.Constraint("Equal", 2, 3),
    Sketcher.Constraint("Equal", 3, 4),
    Sketcher.Constraint("Equal", 4, 5),
    Sketcher.Constraint("Equal", 5, 6),
    Sketcher.Constraint("Equal", 6, 7),
    Sketcher.Constraint("Equal", 7, 8),
    Sketcher.Constraint("Equal", 8, 9),
    Sketcher.Constraint("Equal", 9, 10),
    Sketcher.Constraint("Equal", 10, 11),
    Sketcher.Constraint("Equal", 11, 12),
    Sketcher.Constraint("Equal", 12, 16),
    Sketcher.Constraint("Equal", 16, 17),
    Sketcher.Constraint("Equal", 17, 18),
    Sketcher.Constraint("Equal", 18, 19),
    Sketcher.Constraint("Equal", 19, 20),
    Sketcher.Constraint("Equal", 20, 21),
    Sketcher.Constraint("Equal", 21, 22),
    Sketcher.Constraint("Equal", 22, 23),
    Sketcher.Constraint("Equal", 23, 24),
    Sketcher.Constraint("Equal", 24, 26),
    Sketcher.Constraint("Equal", 26, 27),
    Sketcher.Constraint("Equal", 27, 28),
    Sketcher.Constraint("Equal", 28, 29),
    Sketcher.Constraint("Equal", 29, 30),
    Sketcher.Constraint("Equal", 30, 31),
    Sketcher.Constraint("Equal", 31, 32),
    Sketcher.Constraint("Equal", 32, 33),
    Sketcher.Constraint("Equal", 33, 34),
    Sketcher.Constraint("Equal", 34, 35),
    Sketcher.Constraint("Equal", 35, 36),
    Sketcher.Constraint("Equal", 36, 37),
    Sketcher.Constraint("Equal", 37, 38),
    Sketcher.Constraint("Equal", 38, 39),
    Sketcher.Constraint("Equal", 39, 40),
    Sketcher.Constraint("Equal", 40, 41),
    Sketcher.Constraint("Equal", 41, 42),
    Sketcher.Constraint("Equal", 42, 43),
    Sketcher.Constraint("Equal", 43, 44),
    Sketcher.Constraint("Equal", 44, 45),
    Sketcher.Constraint("Equal", 45, 46),
    Sketcher.Constraint("Equal", 46, 47),
    Sketcher.Constraint("Equal", 47, 48),
    Sketcher.Constraint("Equal", 48, 49),
    Sketcher.Constraint("Equal", 49, 50),
    Sketcher.Constraint("Equal", 50, 51),
    Sketcher.Constraint("Equal", 51, 52),
    Sketcher.Constraint("Equal", 52, 53),
    Sketcher.Constraint("Symmetric", 6, 2, 7, 2, -2),
    Sketcher.Constraint("Symmetric", 4, 2, 9, 2, -2),
    Sketcher.Constraint("Symmetric", 2, 2, 11, 2, -2),
    Sketcher.Constraint("Symmetric", 0, 2, 13, 2, -2),
    Sketcher.Constraint("Symmetric", 19, 2, 20, 2, -2),
    Sketcher.Constraint("Symmetric", 17, 2, 22, 2, -2),
    Sketcher.Constraint("Symmetric", 15, 2, 24, 2, -2),
    Sketcher.Constraint("Symmetric", 39, 2, 40, 2, -2),
    Sketcher.Constraint("Symmetric", 37, 2, 42, 2, -2),
    Sketcher.Constraint("Symmetric", 35, 2, 44, 2, -2),
    Sketcher.Constraint("Symmetric", 33, 2, 46, 2, -2),
    Sketcher.Constraint("Symmetric", 31, 2, 48, 2, -2),
    Sketcher.Constraint("Symmetric", 29, 2, 50, 2, -2),
    Sketcher.Constraint("Symmetric", 27, 2, 52, 2, -2),
    Sketcher.Constraint("PointOnObject", 26, 3, -2),
    Sketcher.Constraint("Vertical", 1, 2, 2, 2),
    Sketcher.Constraint("Vertical", 2, 2, 3, 2),
    Sketcher.Constraint("Vertical", 3, 2, 4, 2),
    Sketcher.Constraint("Vertical", 4, 2, 5, 2),
    Sketcher.Constraint("Vertical", 5, 2, 6, 2),
    Sketcher.Constraint("Vertical", 12, 2, 16, 2),
    Sketcher.Constraint("Vertical", 16, 2, 17, 2),
    Sketcher.Constraint("Vertical", 17, 2, 18, 2),
    Sketcher.Constraint("Vertical", 18, 2, 19, 2),
    Sketcher.Constraint("Vertical", 19, 2, 26, 2),
    Sketcher.Constraint("Vertical", 26, 2, 27, 2),
    Sketcher.Constraint("Vertical", 27, 2, 28, 2),
    Sketcher.Constraint("Vertical", 28, 2, 29, 2),
    Sketcher.Constraint("Vertical", 29, 2, 30, 2),
    Sketcher.Constraint("Vertical", 30, 2, 31, 2),
    Sketcher.Constraint("Vertical", 31, 2, 32, 2),
    Sketcher.Constraint("Vertical", 32, 2, 33, 2),
    Sketcher.Constraint("Vertical", 33, 2, 34, 2),
    Sketcher.Constraint("Vertical", 34, 2, 35, 2),
    Sketcher.Constraint("Vertical", 35, 2, 36, 2),
    Sketcher.Constraint("Vertical", 36, 2, 37, 2),
    Sketcher.Constraint("Vertical", 37, 2, 38, 2),
    Sketcher.Constraint("Vertical", 38, 2, 39, 2),
    Sketcher.Constraint("Radius", 2, Q("7.5 mm")),
    Sketcher.Constraint("DistanceX", 0, 2, -1, 1, Q("12.5 mm")),
    Sketcher.Constraint("DistanceY", -1, 1, 14, 2, Q("12.5 mm")),
    Sketcher.Constraint("DistanceX", 15, 2, 15, 1, Q("7.109328 mm")),
    Sketcher.Constraint("DistanceX", 1, 1, 1, 2, Q("5.428932 mm")),
    Sketcher.Constraint("DistanceY", 0, 1, 0, 2, Q("162.714466 mm")),
    Sketcher.Constraint("DistanceY", -1, 1, 26, 3, Q("57.714466 mm")),
])
sketch3.setExpression("Constraints[167]", "Params.sketch3_radius")
pad3 = body.newObject("PartDesign::Pad", "Pad002")
pad3.Profile = sketch3
pad3.setExpression("Length", "Params.pad3_length")
pad3.Reversed = True

sketch4 = body.newObject("Sketcher::SketchObject", "Sketch003")
sketch4.AttachmentSupport = (doc.getObject("XZ_Plane"), [""])
sketch4.MapMode = "FlatFace"
add_polygon(sketch4, [(-12.5, 175.214466), (-12.5, 177.214466), (-7.071068, 177.214466), (-7.071068, 175.214466)])
add_polygon(sketch4, [(7.071068, 175.214466), (7.071068, 177.214466), (12.5, 177.214466), (12.5, 175.214466)])
sketch4.addConstraint([
    Sketcher.Constraint("Vertical", 0),
    Sketcher.Constraint("Horizontal", 1),
    Sketcher.Constraint("Vertical", 2),
    Sketcher.Constraint("Horizontal", 3),
    Sketcher.Constraint("Vertical", 4),
    Sketcher.Constraint("Horizontal", 5),
    Sketcher.Constraint("Vertical", 6),
    Sketcher.Constraint("Horizontal", 7),
    Sketcher.Constraint("Symmetric", 1, 2, 4, 2, -2),
    Sketcher.Constraint("Symmetric", 3, 2, 6, 2, -2),
    Sketcher.Constraint("DistanceY", 0, 1, 0, 2, Q("2 mm")),
    Sketcher.Constraint("DistanceX", 0, 2, 5, 2, Q("25 mm")),
    Sketcher.Constraint("DistanceX", 1, 1, 1, 2, Q("5.428932 mm")),
    Sketcher.Constraint("DistanceY", -1, 1, 0, 2, Q("177.214466 mm")),
])
sketch4.setExpression("Constraints[18]", "Params.sketch4_height")
pad4 = body.newObject("PartDesign::Pad", "Pad003")
pad4.Profile = sketch4
pad4.setExpression("Length", "Params.pad4_length")
pad4.Reversed = True

doc.recompute()
